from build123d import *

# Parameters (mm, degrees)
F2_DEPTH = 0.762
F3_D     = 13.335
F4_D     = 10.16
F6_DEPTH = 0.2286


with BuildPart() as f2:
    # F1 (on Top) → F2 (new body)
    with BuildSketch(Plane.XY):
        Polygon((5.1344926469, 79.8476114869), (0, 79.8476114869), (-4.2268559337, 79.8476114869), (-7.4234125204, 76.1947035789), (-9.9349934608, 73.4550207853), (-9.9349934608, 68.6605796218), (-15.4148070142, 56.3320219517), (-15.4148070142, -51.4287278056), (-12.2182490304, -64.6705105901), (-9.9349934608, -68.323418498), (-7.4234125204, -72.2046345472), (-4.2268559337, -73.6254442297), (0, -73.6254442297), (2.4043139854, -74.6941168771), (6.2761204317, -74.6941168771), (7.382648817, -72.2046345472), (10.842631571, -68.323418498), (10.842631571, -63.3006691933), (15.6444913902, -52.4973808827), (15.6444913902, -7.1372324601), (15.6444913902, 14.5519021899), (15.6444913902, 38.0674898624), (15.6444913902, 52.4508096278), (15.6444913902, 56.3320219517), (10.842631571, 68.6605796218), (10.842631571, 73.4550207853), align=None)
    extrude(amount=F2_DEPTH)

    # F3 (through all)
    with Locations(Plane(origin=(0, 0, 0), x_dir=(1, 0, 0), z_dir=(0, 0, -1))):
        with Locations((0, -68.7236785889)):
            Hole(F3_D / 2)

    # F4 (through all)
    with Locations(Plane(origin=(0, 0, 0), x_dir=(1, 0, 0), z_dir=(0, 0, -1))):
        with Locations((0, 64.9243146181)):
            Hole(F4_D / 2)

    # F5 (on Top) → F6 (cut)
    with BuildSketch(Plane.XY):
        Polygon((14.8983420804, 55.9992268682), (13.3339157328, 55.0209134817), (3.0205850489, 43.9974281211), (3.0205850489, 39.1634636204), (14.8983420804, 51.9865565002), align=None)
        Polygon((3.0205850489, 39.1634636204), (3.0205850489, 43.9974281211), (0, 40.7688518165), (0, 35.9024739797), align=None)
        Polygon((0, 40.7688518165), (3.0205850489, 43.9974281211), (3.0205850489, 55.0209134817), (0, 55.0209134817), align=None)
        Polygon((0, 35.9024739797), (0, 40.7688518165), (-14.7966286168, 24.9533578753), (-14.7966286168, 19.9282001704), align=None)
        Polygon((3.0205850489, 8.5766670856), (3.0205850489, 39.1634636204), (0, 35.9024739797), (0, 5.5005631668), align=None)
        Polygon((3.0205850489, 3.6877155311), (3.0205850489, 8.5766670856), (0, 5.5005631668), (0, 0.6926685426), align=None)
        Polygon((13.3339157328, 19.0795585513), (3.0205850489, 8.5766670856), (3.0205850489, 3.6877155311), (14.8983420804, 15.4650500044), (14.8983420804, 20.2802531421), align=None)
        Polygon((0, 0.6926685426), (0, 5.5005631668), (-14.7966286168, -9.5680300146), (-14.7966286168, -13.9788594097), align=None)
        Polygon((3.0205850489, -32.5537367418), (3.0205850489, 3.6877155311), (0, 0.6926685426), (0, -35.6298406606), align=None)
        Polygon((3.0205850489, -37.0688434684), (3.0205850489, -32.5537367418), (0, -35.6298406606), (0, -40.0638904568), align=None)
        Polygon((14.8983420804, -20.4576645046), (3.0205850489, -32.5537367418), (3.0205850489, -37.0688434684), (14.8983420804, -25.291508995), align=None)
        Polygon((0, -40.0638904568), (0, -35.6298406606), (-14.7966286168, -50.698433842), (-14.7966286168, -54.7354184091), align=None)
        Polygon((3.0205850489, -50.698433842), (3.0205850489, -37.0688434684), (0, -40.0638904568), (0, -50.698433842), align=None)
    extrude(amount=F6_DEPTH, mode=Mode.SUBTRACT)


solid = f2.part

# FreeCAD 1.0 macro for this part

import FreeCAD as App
import Part
import Sketcher

V = App.Vector
Q = App.Units.Quantity

doc = App.newDocument("Part")
body = doc.addObject("PartDesign::Body", "Body")

# Sketch on XY plane
sketch1 = doc.addObject("Sketcher::SketchObject", "Sketch")
body.addObject(sketch1)
sketch1.AttachmentSupport = (doc.XY_Plane, [""])
sketch1.MapMode = "FlatFace"
sketch1.addGeometry(Part.LineSegment(V(5.1, 79.8, 0), V(-4.2, 79.8, 0)), False)
sketch1.addGeometry(Part.LineSegment(V(-4.2, 79.8, 0), V(-7.4, 76.2, 0)), False)
sketch1.addGeometry(Part.LineSegment(V(-7.4, 76.2, 0), V(-9.9, 73.5, 0)), False)
sketch1.addGeometry(Part.LineSegment(V(-9.9, 73.5, 0), V(-9.9, 68.7, 0)), False)
sketch1.addGeometry(Part.LineSegment(V(-9.9, 68.7, 0), V(-15.4, 56.3, 0)), False)
sketch1.addGeometry(Part.LineSegment(V(-15.4, 56.3, 0), V(-15.4, -51.4, 0)), False)
sketch1.addGeometry(Part.LineSegment(V(-15.4, -51.4, 0), V(-12.2, -64.7, 0)), False)
sketch1.addGeometry(Part.LineSegment(V(-12.2, -64.7, 0), V(-9.9, -68.3, 0)), False)
sketch1.addGeometry(Part.LineSegment(V(-9.9, -68.3, 0), V(-7.4, -72.2, 0)), False)
sketch1.addGeometry(Part.LineSegment(V(-7.4, -72.2, 0), V(-4.2, -73.6, 0)), False)
sketch1.addGeometry(Part.LineSegment(V(-4.2, -73.6, 0), V(0, -73.6, 0)), False)
sketch1.addGeometry(Part.LineSegment(V(0, -73.6, 0), V(2.4, -74.7, 0)), False)
sketch1.addGeometry(Part.LineSegment(V(2.4, -74.7, 0), V(6.3, -74.7, 0)), False)
sketch1.addGeometry(Part.LineSegment(V(6.3, -74.7, 0), V(7.4, -72.2, 0)), False)
sketch1.addGeometry(Part.LineSegment(V(7.4, -72.2, 0), V(10.8, -68.3, 0)), False)
sketch1.addGeometry(Part.LineSegment(V(10.8, -68.3, 0), V(10.8, -63.3, 0)), False)
sketch1.addGeometry(Part.LineSegment(V(10.8, -63.3, 0), V(15.6, -52.5, 0)), False)
sketch1.addGeometry(Part.LineSegment(V(15.6, -52.5, 0), V(15.6, 56.3, 0)), False)
sketch1.addGeometry(Part.LineSegment(V(15.6, 56.3, 0), V(10.8, 68.7, 0)), False)
sketch1.addGeometry(Part.LineSegment(V(10.8, 68.7, 0), V(10.8, 73.5, 0)), False)
sketch1.addGeometry(Part.LineSegment(V(10.8, 73.5, 0), V(5.1, 79.8, 0)), False)
sketch1.addConstraint(Sketcher.Constraint("Coincident", 0, 2, 1, 1))
sketch1.addConstraint(Sketcher.Constraint("Coincident", 1, 2, 2, 1))
sketch1.addConstraint(Sketcher.Constraint("Coincident", 2, 2, 3, 1))
sketch1.addConstraint(Sketcher.Constraint("Coincident", 3, 2, 4, 1))
sketch1.addConstraint(Sketcher.Constraint("Coincident", 4, 2, 5, 1))
sketch1.addConstraint(Sketcher.Constraint("Coincident", 5, 2, 6, 1))
sketch1.addConstraint(Sketcher.Constraint("Coincident", 6, 2, 7, 1))
sketch1.addConstraint(Sketcher.Constraint("Coincident", 7, 2, 8, 1))
sketch1.addConstraint(Sketcher.Constraint("Coincident", 8, 2, 9, 1))
sketch1.addConstraint(Sketcher.Constraint("Coincident", 9, 2, 10, 1))
sketch1.addConstraint(Sketcher.Constraint("Coincident", 10, 2, 11, 1))
sketch1.addConstraint(Sketcher.Constraint("Coincident", 11, 2, 12, 1))
sketch1.addConstraint(Sketcher.Constraint("Coincident", 12, 2, 13, 1))
sketch1.addConstraint(Sketcher.Constraint("Coincident", 13, 2, 14, 1))
sketch1.addConstraint(Sketcher.Constraint("Coincident", 14, 2, 15, 1))
sketch1.addConstraint(Sketcher.Constraint("Coincident", 15, 2, 16, 1))
sketch1.addConstraint(Sketcher.Constraint("Coincident", 16, 2, 17, 1))
sketch1.addConstraint(Sketcher.Constraint("Coincident", 17, 2, 18, 1))
sketch1.addConstraint(Sketcher.Constraint("Coincident", 18, 2, 19, 1))
sketch1.addConstraint(Sketcher.Constraint("Coincident", 19, 2, 20, 1))
sketch1.addConstraint(Sketcher.Constraint("Coincident", 20, 2, 0, 1))
sketch1.addConstraint(Sketcher.Constraint("Horizontal", 0))
sketch1.addConstraint(Sketcher.Constraint("Vertical", 3))
sketch1.addConstraint(Sketcher.Constraint("Vertical", 5))
sketch1.addConstraint(Sketcher.Constraint("Horizontal", 10))
sketch1.addConstraint(Sketcher.Constraint("Horizontal", 12))
sketch1.addConstraint(Sketcher.Constraint("Vertical", 15))
sketch1.addConstraint(Sketcher.Constraint("Vertical", 17))
sketch1.addConstraint(Sketcher.Constraint("Vertical", 19))
sketch1.addConstraint(Sketcher.Constraint("PointOnObject", 10, 2, -2))
sketch1.addConstraint(Sketcher.Constraint("Perpendicular", 4, 9))
sketch1.addConstraint(Sketcher.Constraint("Parallel", 9, 11))
sketch1.addConstraint(Sketcher.Constraint("Perpendicular", 11, 13))
sketch1.addConstraint(Sketcher.Constraint("Parallel", 13, 16))
sketch1.addConstraint(Sketcher.Constraint("Horizontal", 8, 2, 13, 2))
sketch1.addConstraint(Sketcher.Constraint("Horizontal", 7, 2, 14, 2))
sketch1.addConstraint(Sketcher.Constraint("Horizontal", 4, 2, 17, 2))
sketch1.addConstraint(Sketcher.Constraint("Horizontal", 3, 2, 18, 2))
sketch1.addConstraint(Sketcher.Constraint("Horizontal", 2, 2, 19, 2))
sketch1.addConstraint(Sketcher.Constraint("Vertical", 3, 2, 7, 2))
sketch1.addConstraint(Sketcher.Constraint("Vertical", 1, 2, 8, 2))
sketch1.addConstraint(Sketcher.Constraint("Vertical", 0, 2, 9, 2))
sketch1.addConstraint(Sketcher.Constraint("Vertical", 15, 2, 18, 2))
sketch1.addConstraint(Sketcher.Constraint("DistanceX", 0, 2, 0, 1, 9.361349))
sketch1.addConstraint(Sketcher.Constraint("DistanceY", 3, 2, 3, 1, 4.794441))
sketch1.addConstraint(Sketcher.Constraint("DistanceY", 5, 2, 5, 1, 107.76075))
sketch1.addConstraint(Sketcher.Constraint("DistanceY", 15, 1, 15, 2, 5.022749))
sketch1.addConstraint(Sketcher.Constraint("DistanceY", 4, 2, 2, 2, 17.122999))
sketch1.addConstraint(Sketcher.Constraint("DistanceY", 7, 2, 3, 2, 136.983998))
sketch1.addConstraint(Sketcher.Constraint("DistanceY", 11, 2, 7, 2, 6.370698))
sketch1.addConstraint(Sketcher.Constraint("DistanceX", 4, 2, 17, 2, 31.059298))
sketch1.addConstraint(Sketcher.Constraint("Distance", 1, 4.854041))
sketch1.addConstraint(Sketcher.Constraint("Distance", 4, 13.491541))
sketch1.addConstraint(Sketcher.Constraint("Distance", 11, 2.631119))
sketch1.addConstraint(Sketcher.Constraint("Distance", 13, 2.724321))
sketch1.addConstraint(Sketcher.Constraint("Distance", 14, 5.19955))
sketch1.addConstraint(Sketcher.Constraint("Distance", 16, 11.82239))
sketch1.addConstraint(Sketcher.Constraint("DistanceX", 10, 1, 10, 2, 4.226856))
sketch1.addConstraint(Sketcher.Constraint("DistanceX", 12, 1, 12, 2, 3.871806))
sketch1.addConstraint(Sketcher.Constraint("DistanceY", -1, 1, 0, 2, 79.847611))
sketch1.addConstraint(Sketcher.Constraint("DistanceY", -1, 1, 2, 2, 73.455021))
sketch1.addConstraint(Sketcher.Constraint("DistanceX", 6, 2, -1, 1, 12.218249))
sketch1.addConstraint(Sketcher.Constraint("DistanceY", 6, 2, -1, 1, 64.670511))
pad1 = doc.addObject("PartDesign::Pad", "Pad")
body.addObject(pad1)
pad1.Profile = sketch1
pad1.Length = Q("0.03 in")

# Sketch on XY plane
sketch2 = doc.addObject("Sketcher::SketchObject", "Sketch001")
body.addObject(sketch2)
sketch2.AttachmentSupport = (doc.XY_Plane, [""])
sketch2.MapMode = "FlatFace"
sketch2.addGeometry(Part.Circle(V(0, 69, 0), V(0, 0, 1), 7), False)
sketch2.addConstraint(Sketcher.Constraint("PointOnObject", 0, 3, -2))
sketch2.addConstraint(Sketcher.Constraint("Diameter", 0, Q("0.525 in")))
sketch2.addConstraint(Sketcher.Constraint("DistanceY", -1, 1, 0, 3, 68.723679))
doc.recompute()
hole = doc.addObject("PartDesign::Hole", "Hole")
body.addObject(hole)
hole.Profile = sketch2
hole.ThreadType = "None"
hole.Diameter = Q("0.525 in")
hole.DepthType = "ThroughAll"
hole.Reversed = True

# Sketch on XY plane
sketch3 = doc.addObject("Sketcher::SketchObject", "Sketch002")
body.addObject(sketch3)
sketch3.AttachmentSupport = (doc.XY_Plane, [""])
sketch3.MapMode = "FlatFace"
sketch3.addGeometry(Part.Circle(V(0, -65, 0), V(0, 0, 1), 5), False)
sketch3.addConstraint(Sketcher.Constraint("PointOnObject", 0, 3, -2))
sketch3.addConstraint(Sketcher.Constraint("Diameter", 0, Q("0.4 in")))
sketch3.addConstraint(Sketcher.Constraint("DistanceY", 0, 3, -1, 1, 64.924315))
doc.recompute()
hole2 = doc.addObject("PartDesign::Hole", "Hole001")
body.addObject(hole2)
hole2.Profile = sketch3
hole2.ThreadType = "None"
hole2.Diameter = Q("0.4 in")
hole2.DepthType = "ThroughAll"
hole2.Reversed = True

# Sketch on XY plane
sketch4 = doc.addObject("Sketcher::SketchObject", "Sketch003")
body.addObject(sketch4)
sketch4.AttachmentSupport = (doc.XY_Plane, [""])
sketch4.MapMode = "FlatFace"
sketch4.addGeometry(Part.LineSegment(V(14.9, 56, 0), V(13.3, 55, 0)), False)
sketch4.addGeometry(Part.LineSegment(V(13.3, 55, 0), V(3, 44, 0)), False)
sketch4.addGeometry(Part.LineSegment(V(3, 44, 0), V(3, 55, 0)), False)
sketch4.addGeometry(Part.LineSegment(V(3, 55, 0), V(0, 55, 0)), False)
sketch4.addGeometry(Part.LineSegment(V(0, 55, 0), V(0, 40.8, 0)), False)
sketch4.addGeometry(Part.LineSegment(V(0, 40.8, 0), V(-14.8, 25, 0)), False)
sketch4.addGeometry(Part.LineSegment(V(-14.8, 25, 0), V(-14.8, 19.9, 0)), False)
sketch4.addGeometry(Part.LineSegment(V(-14.8, 19.9, 0), V(0, 35.9, 0)), False)
sketch4.addGeometry(Part.LineSegment(V(0, 35.9, 0), V(0, 5.5, 0)), False)
sketch4.addGeometry(Part.LineSegment(V(0, 5.5, 0), V(-14.8, -9.6, 0)), False)
sketch4.addGeometry(Part.LineSegment(V(-14.8, -9.6, 0), V(-14.8, -14, 0)), False)
sketch4.addGeometry(Part.LineSegment(V(-14.8, -14, 0), V(0, 0.7, 0)), False)
sketch4.addGeometry(Part.LineSegment(V(0, 0.7, 0), V(0, -35.6, 0)), False)
sketch4.addGeometry(Part.LineSegment(V(0, -35.6, 0), V(-14.8, -50.7, 0)), False)
sketch4.addGeometry(Part.LineSegment(V(-14.8, -50.7, 0), V(-14.8, -54.7, 0)), False)
sketch4.addGeometry(Part.LineSegment(V(-14.8, -54.7, 0), V(0, -40.1, 0)), False)
sketch4.addGeometry(Part.LineSegment(V(0, -40.1, 0), V(0, -50.7, 0)), False)
sketch4.addGeometry(Part.LineSegment(V(0, -50.7, 0), V(3, -50.7, 0)), False)
sketch4.addGeometry(Part.LineSegment(V(3, -50.7, 0), V(3, -37.1, 0)), False)
sketch4.addGeometry(Part.LineSegment(V(3, -37.1, 0), V(14.9, -25.3, 0)), False)
sketch4.addGeometry(Part.LineSegment(V(14.9, -25.3, 0), V(14.9, -20.5, 0)), False)
sketch4.addGeometry(Part.LineSegment(V(14.9, -20.5, 0), V(3, -32.6, 0)), False)
sketch4.addGeometry(Part.LineSegment(V(3, -32.6, 0), V(3, 3.7, 0)), False)
sketch4.addGeometry(Part.LineSegment(V(3, 3.7, 0), V(14.9, 15.5, 0)), False)
sketch4.addGeometry(Part.LineSegment(V(14.9, 15.5, 0), V(14.9, 20.3, 0)), False)
sketch4.addGeometry(Part.LineSegment(V(14.9, 20.3, 0), V(13.3, 19.1, 0)), False)
sketch4.addGeometry(Part.LineSegment(V(13.3, 19.1, 0), V(3, 8.6, 0)), False)
sketch4.addGeometry(Part.LineSegment(V(3, 8.6, 0), V(3, 39.2, 0)), False)
sketch4.addGeometry(Part.LineSegment(V(3, 39.2, 0), V(14.9, 52, 0)), False)
sketch4.addGeometry(Part.LineSegment(V(14.9, 52, 0), V(14.9, 56, 0)), False)
sketch4.addConstraint(Sketcher.Constraint("Coincident", 0, 2, 1, 1))
sketch4.addConstraint(Sketcher.Constraint("Coincident", 1, 2, 2, 1))
sketch4.addConstraint(Sketcher.Constraint("Coincident", 2, 2, 3, 1))
sketch4.addConstraint(Sketcher.Constraint("Coincident", 3, 2, 4, 1))
sketch4.addConstraint(Sketcher.Constraint("Coincident", 4, 2, 5, 1))
sketch4.addConstraint(Sketcher.Constraint("Coincident", 5, 2, 6, 1))
sketch4.addConstraint(Sketcher.Constraint("Coincident", 6, 2, 7, 1))
sketch4.addConstraint(Sketcher.Constraint("Coincident", 7, 2, 8, 1))
sketch4.addConstraint(Sketcher.Constraint("Coincident", 8, 2, 9, 1))
sketch4.addConstraint(Sketcher.Constraint("Coincident", 9, 2, 10, 1))
sketch4.addConstraint(Sketcher.Constraint("Coincident", 10, 2, 11, 1))
sketch4.addConstraint(Sketcher.Constraint("Coincident", 11, 2, 12, 1))
sketch4.addConstraint(Sketcher.Constraint("Coincident", 12, 2, 13, 1))
sketch4.addConstraint(Sketcher.Constraint("Coincident", 13, 2, 14, 1))
sketch4.addConstraint(Sketcher.Constraint("Coincident", 14, 2, 15, 1))
sketch4.addConstraint(Sketcher.Constraint("Coincident", 15, 2, 16, 1))
sketch4.addConstraint(Sketcher.Constraint("Coincident", 16, 2, 17, 1))
sketch4.addConstraint(Sketcher.Constraint("Coincident", 17, 2, 18, 1))
sketch4.addConstraint(Sketcher.Constraint("Coincident", 18, 2, 19, 1))
sketch4.addConstraint(Sketcher.Constraint("Coincident", 19, 2, 20, 1))
sketch4.addConstraint(Sketcher.Constraint("Coincident", 20, 2, 21, 1))
sketch4.addConstraint(Sketcher.Constraint("Coincident", 21, 2, 22, 1))
sketch4.addConstraint(Sketcher.Constraint("Coincident", 22, 2, 23, 1))
sketch4.addConstraint(Sketcher.Constraint("Coincident", 23, 2, 24, 1))
sketch4.addConstraint(Sketcher.Constraint("Coincident", 24, 2, 25, 1))
sketch4.addConstraint(Sketcher.Constraint("Coincident", 25, 2, 26, 1))
sketch4.addConstraint(Sketcher.Constraint("Coincident", 26, 2, 27, 1))
sketch4.addConstraint(Sketcher.Constraint("Coincident", 27, 2, 28, 1))
sketch4.addConstraint(Sketcher.Constraint("Coincident", 28, 2, 29, 1))
sketch4.addConstraint(Sketcher.Constraint("Coincident", 29, 2, 0, 1))
sketch4.addConstraint(Sketcher.Constraint("Vertical", 2))
sketch4.addConstraint(Sketcher.Constraint("Horizontal", 3))
sketch4.addConstraint(Sketcher.Constraint("Vertical", 4))
sketch4.addConstraint(Sketcher.Constraint("Vertical", 6))
sketch4.addConstraint(Sketcher.Constraint("Vertical", 8))
sketch4.addConstraint(Sketcher.Constraint("Vertical", 10))
sketch4.addConstraint(Sketcher.Constraint("Vertical", 12))
sketch4.addConstraint(Sketcher.Constraint("Vertical", 14))
sketch4.addConstraint(Sketcher.Constraint("Vertical", 16))
sketch4.addConstraint(Sketcher.Constraint("Horizontal", 17))
sketch4.addConstraint(Sketcher.Constraint("Vertical", 18))
sketch4.addConstraint(Sketcher.Constraint("Vertical", 20))
sketch4.addConstraint(Sketcher.Constraint("Vertical", 22))
sketch4.addConstraint(Sketcher.Constraint("Vertical", 24))
sketch4.addConstraint(Sketcher.Constraint("Vertical", 27))
sketch4.addConstraint(Sketcher.Constraint("Vertical", 29))
sketch4.addConstraint(Sketcher.Constraint("PointOnObject", 3, 2, -2))
sketch4.addConstraint(Sketcher.Constraint("PointOnObject", 7, 2, -2))
sketch4.addConstraint(Sketcher.Constraint("PointOnObject", 11, 2, -2))
sketch4.addConstraint(Sketcher.Constraint("PointOnObject", 15, 2, -2))
sketch4.addConstraint(Sketcher.Constraint("Parallel", 1, 5))
sketch4.addConstraint(Sketcher.Constraint("Parallel", 9, 13))
sketch4.addConstraint(Sketcher.Constraint("Parallel", 11, 15))
sketch4.addConstraint(Sketcher.Constraint("Parallel", 15, 19))
sketch4.addConstraint(Sketcher.Constraint("Parallel", 13, 21))
sketch4.addConstraint(Sketcher.Constraint("Parallel", 19, 23))
sketch4.addConstraint(Sketcher.Constraint("Parallel", 21, 26))
sketch4.addConstraint(Sketcher.Constraint("Parallel", 7, 28))
sketch4.addConstraint(Sketcher.Constraint("Horizontal", 0, 2, 2, 2))
sketch4.addConstraint(Sketcher.Constraint("Horizontal", 13, 2, 16, 2))
sketch4.addConstraint(Sketcher.Constraint("Vertical", 6, 2, 9, 2))
sketch4.addConstraint(Sketcher.Constraint("Vertical", 10, 2, 13, 2))
sketch4.addConstraint(Sketcher.Constraint("Vertical", 2, 2, 17, 2))
sketch4.addConstraint(Sketcher.Constraint("Vertical", 18, 2, 21, 2))
sketch4.addConstraint(Sketcher.Constraint("Vertical", 20, 2, 23, 2))
sketch4.addConstraint(Sketcher.Constraint("Vertical", 0, 2, 25, 2))
sketch4.addConstraint(Sketcher.Constraint("Vertical", 22, 2, 26, 2))
sketch4.addConstraint(Sketcher.Constraint("Vertical", 24, 2, 28, 2))
sketch4.addConstraint(Sketcher.Constraint("DistanceY", 4, 2, 4, 1, 14.252062))
sketch4.addConstraint(Sketcher.Constraint("DistanceY", 8, 2, 8, 1, 30.401911))
sketch4.addConstraint(Sketcher.Constraint("DistanceY", 10, 2, 10, 1, 4.410829))
sketch4.addConstraint(Sketcher.Constraint("DistanceY", 12, 2, 12, 1, 36.322509))
sketch4.addConstraint(Sketcher.Constraint("DistanceY", 18, 1, 18, 2, 13.62959))
sketch4.addConstraint(Sketcher.Constraint("DistanceY", 29, 1, 29, 2, 4.01267))
sketch4.addConstraint(Sketcher.Constraint("DistanceY", -1, 1, 6, 2, 19.9282))
sketch4.addConstraint(Sketcher.Constraint("DistanceY", 9, 2, 11, 2, 10.260699))
sketch4.addConstraint(Sketcher.Constraint("DistanceY", 23, 2, 4, 2, 25.303802))
sketch4.addConstraint(Sketcher.Constraint("DistanceY", 11, 2, 26, 2, 7.883999))
sketch4.addConstraint(Sketcher.Constraint("DistanceY", 1, 2, 29, 2, 12.001799))
sketch4.addConstraint(Sketcher.Constraint("Distance", 1, 15.095762))
sketch4.addConstraint(Sketcher.Constraint("Distance", 11, 20.837321))
sketch4.addConstraint(Sketcher.Constraint("Distance", 21, 16.95276))
sketch4.addConstraint(Sketcher.Constraint("Distance", 25, 1.972079))
sketch4.addConstraint(Sketcher.Constraint("DistanceX", 3, 2, 3, 1, 3.020585))
sketch4.addConstraint(Sketcher.Constraint("DistanceY", 2, 1, 2, 2, 11.023485))
sketch4.addConstraint(Sketcher.Constraint("DistanceY", 6, 2, 6, 1, 5.025158))
sketch4.addConstraint(Sketcher.Constraint("DistanceY", 14, 2, 14, 1, 4.036985))
sketch4.addConstraint(Sketcher.Constraint("DistanceY", 20, 1, 20, 2, 4.833844))
sketch4.addConstraint(Sketcher.Constraint("DistanceY", 22, 1, 22, 2, 36.241452))
sketch4.addConstraint(Sketcher.Constraint("DistanceY", 24, 1, 24, 2, 4.815203))
pocket1 = doc.addObject("PartDesign::Pocket", "Pocket")
body.addObject(pocket1)
pocket1.Profile = sketch4
pocket1.Length = Q("0.009 in")
pocket1.Reversed = True

doc.recompute()
